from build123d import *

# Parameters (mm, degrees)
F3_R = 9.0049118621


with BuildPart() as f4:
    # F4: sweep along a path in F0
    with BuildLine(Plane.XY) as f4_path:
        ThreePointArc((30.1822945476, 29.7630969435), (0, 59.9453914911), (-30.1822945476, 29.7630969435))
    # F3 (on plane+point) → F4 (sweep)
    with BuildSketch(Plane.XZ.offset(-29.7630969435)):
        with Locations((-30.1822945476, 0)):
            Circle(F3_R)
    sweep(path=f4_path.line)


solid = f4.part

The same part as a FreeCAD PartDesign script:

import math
import FreeCAD as App
import Part
import Sketcher
from FreeCAD import Vector

doc = App.newDocument("Part")
body = doc.addObject("PartDesign::Body", "Body")

sketch1 = body.newObject("Sketcher::SketchObject", "Sketch")
sketch1.AttachmentSupport = (doc.getObject("XZ_Plane"), [""])
sketch1.MapMode = "FlatFace"
sketch1.AttachmentOffset = App.Placement(Vector(0, 0, -29.763097), App.Rotation())
sketch1.addGeometry(Part.Circle(Vector(-30.182295, 0, 0), Vector(0, 0, 1), 9.004912), False)
sketch1.addConstraint([
    Sketcher.Constraint("PointOnObject", 0, 3, -1),
    Sketcher.Constraint("Diameter", 0, 18.009824),
    Sketcher.Constraint("DistanceX", 0, 3, -1, 1, 30.182295),
])

sketch2 = body.newObject("Sketcher::SketchObject", "Sketch001")
sketch2.AttachmentSupport = (doc.getObject("XY_Plane"), [""])
sketch2.MapMode = "FlatFace"
sketch2.addGeometry(Part.ArcOfCircle(Part.Circle(Vector(0, 29.763097, 0), Vector(0, 0, 1), 30.182295), math.radians(0), math.radians(180)), False)
sketch2.addConstraint([
    Sketcher.Constraint("Symmetric", 0, 1, 0, 2, -2),
    Sketcher.Constraint("Radius", 0, 30.182295),
    Sketcher.Constraint("DistanceY", -1, 1, 0, 3, 29.763097),
    Sketcher.Constraint("DistanceY", -1, 1, 0, 1, 29.763097),
])
doc.recompute()

additivepipe = body.newObject("PartDesign::AdditivePipe", "AdditivePipe")
additivepipe.Profile = sketch1
additivepipe.Spine = (sketch2, ["Edge1"])

doc.recompute()
